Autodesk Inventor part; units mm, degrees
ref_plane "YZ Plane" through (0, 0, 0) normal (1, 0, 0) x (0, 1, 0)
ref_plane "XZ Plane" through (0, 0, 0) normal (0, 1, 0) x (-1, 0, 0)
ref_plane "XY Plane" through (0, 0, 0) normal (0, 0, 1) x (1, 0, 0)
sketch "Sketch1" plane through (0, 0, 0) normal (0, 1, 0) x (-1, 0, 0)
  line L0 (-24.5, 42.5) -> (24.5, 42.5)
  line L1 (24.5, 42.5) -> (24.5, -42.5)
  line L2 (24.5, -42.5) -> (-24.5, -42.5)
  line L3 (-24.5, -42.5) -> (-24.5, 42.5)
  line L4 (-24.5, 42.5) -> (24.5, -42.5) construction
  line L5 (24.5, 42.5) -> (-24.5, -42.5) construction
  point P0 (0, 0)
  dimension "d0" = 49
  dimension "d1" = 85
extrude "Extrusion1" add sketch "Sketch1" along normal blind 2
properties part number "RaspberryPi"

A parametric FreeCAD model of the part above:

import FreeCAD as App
import Part
import Sketcher
from FreeCAD import Vector

doc = App.newDocument("Part")
body = doc.addObject("PartDesign::Body", "Body")

sketch1 = doc.addObject("Sketcher::SketchObject", "Sketch")
body.addObject(sketch1)
sketch1.AttachmentSupport = (doc.XZ_Plane, [""])
sketch1.MapMode = "FlatFace"
sketch1.addGeometry(Part.LineSegment(Vector(-24, 42, 0), Vector(24, 42, 0)), False)
sketch1.addGeometry(Part.LineSegment(Vector(24, 42, 0), Vector(24, -42, 0)), False)
sketch1.addGeometry(Part.LineSegment(Vector(24, -42, 0), Vector(-24, -42, 0)), False)
sketch1.addGeometry(Part.LineSegment(Vector(-24, -42, 0), Vector(-24, 42, 0)), False)
sketch1.addConstraint(Sketcher.Constraint("Coincident", 0, 2, 1, 1))
sketch1.addConstraint(Sketcher.Constraint("Coincident", 1, 2, 2, 1))
sketch1.addConstraint(Sketcher.Constraint("Coincident", 2, 2, 3, 1))
sketch1.addConstraint(Sketcher.Constraint("Coincident", 3, 2, 0, 1))
sketch1.addConstraint(Sketcher.Constraint("Horizontal", 0))
sketch1.addConstraint(Sketcher.Constraint("Vertical", 1))
sketch1.addConstraint(Sketcher.Constraint("Horizontal", 2))
sketch1.addConstraint(Sketcher.Constraint("Vertical", 3))
sketch1.addConstraint(Sketcher.Constraint("Symmetric", 0, 2, 2, 2, -1, 1))
sketch1.addConstraint(Sketcher.Constraint("DistanceX", 0, 1, 0, 2, 49.0))
sketch1.addConstraint(Sketcher.Constraint("DistanceY", 1, 2, 1, 1, 85.0))
pad1 = doc.addObject("PartDesign::Pad", "Pad")
body.addObject(pad1)
pad1.Profile = sketch1
pad1.Length = 2
pad1.Reversed = True

doc.recompute()
